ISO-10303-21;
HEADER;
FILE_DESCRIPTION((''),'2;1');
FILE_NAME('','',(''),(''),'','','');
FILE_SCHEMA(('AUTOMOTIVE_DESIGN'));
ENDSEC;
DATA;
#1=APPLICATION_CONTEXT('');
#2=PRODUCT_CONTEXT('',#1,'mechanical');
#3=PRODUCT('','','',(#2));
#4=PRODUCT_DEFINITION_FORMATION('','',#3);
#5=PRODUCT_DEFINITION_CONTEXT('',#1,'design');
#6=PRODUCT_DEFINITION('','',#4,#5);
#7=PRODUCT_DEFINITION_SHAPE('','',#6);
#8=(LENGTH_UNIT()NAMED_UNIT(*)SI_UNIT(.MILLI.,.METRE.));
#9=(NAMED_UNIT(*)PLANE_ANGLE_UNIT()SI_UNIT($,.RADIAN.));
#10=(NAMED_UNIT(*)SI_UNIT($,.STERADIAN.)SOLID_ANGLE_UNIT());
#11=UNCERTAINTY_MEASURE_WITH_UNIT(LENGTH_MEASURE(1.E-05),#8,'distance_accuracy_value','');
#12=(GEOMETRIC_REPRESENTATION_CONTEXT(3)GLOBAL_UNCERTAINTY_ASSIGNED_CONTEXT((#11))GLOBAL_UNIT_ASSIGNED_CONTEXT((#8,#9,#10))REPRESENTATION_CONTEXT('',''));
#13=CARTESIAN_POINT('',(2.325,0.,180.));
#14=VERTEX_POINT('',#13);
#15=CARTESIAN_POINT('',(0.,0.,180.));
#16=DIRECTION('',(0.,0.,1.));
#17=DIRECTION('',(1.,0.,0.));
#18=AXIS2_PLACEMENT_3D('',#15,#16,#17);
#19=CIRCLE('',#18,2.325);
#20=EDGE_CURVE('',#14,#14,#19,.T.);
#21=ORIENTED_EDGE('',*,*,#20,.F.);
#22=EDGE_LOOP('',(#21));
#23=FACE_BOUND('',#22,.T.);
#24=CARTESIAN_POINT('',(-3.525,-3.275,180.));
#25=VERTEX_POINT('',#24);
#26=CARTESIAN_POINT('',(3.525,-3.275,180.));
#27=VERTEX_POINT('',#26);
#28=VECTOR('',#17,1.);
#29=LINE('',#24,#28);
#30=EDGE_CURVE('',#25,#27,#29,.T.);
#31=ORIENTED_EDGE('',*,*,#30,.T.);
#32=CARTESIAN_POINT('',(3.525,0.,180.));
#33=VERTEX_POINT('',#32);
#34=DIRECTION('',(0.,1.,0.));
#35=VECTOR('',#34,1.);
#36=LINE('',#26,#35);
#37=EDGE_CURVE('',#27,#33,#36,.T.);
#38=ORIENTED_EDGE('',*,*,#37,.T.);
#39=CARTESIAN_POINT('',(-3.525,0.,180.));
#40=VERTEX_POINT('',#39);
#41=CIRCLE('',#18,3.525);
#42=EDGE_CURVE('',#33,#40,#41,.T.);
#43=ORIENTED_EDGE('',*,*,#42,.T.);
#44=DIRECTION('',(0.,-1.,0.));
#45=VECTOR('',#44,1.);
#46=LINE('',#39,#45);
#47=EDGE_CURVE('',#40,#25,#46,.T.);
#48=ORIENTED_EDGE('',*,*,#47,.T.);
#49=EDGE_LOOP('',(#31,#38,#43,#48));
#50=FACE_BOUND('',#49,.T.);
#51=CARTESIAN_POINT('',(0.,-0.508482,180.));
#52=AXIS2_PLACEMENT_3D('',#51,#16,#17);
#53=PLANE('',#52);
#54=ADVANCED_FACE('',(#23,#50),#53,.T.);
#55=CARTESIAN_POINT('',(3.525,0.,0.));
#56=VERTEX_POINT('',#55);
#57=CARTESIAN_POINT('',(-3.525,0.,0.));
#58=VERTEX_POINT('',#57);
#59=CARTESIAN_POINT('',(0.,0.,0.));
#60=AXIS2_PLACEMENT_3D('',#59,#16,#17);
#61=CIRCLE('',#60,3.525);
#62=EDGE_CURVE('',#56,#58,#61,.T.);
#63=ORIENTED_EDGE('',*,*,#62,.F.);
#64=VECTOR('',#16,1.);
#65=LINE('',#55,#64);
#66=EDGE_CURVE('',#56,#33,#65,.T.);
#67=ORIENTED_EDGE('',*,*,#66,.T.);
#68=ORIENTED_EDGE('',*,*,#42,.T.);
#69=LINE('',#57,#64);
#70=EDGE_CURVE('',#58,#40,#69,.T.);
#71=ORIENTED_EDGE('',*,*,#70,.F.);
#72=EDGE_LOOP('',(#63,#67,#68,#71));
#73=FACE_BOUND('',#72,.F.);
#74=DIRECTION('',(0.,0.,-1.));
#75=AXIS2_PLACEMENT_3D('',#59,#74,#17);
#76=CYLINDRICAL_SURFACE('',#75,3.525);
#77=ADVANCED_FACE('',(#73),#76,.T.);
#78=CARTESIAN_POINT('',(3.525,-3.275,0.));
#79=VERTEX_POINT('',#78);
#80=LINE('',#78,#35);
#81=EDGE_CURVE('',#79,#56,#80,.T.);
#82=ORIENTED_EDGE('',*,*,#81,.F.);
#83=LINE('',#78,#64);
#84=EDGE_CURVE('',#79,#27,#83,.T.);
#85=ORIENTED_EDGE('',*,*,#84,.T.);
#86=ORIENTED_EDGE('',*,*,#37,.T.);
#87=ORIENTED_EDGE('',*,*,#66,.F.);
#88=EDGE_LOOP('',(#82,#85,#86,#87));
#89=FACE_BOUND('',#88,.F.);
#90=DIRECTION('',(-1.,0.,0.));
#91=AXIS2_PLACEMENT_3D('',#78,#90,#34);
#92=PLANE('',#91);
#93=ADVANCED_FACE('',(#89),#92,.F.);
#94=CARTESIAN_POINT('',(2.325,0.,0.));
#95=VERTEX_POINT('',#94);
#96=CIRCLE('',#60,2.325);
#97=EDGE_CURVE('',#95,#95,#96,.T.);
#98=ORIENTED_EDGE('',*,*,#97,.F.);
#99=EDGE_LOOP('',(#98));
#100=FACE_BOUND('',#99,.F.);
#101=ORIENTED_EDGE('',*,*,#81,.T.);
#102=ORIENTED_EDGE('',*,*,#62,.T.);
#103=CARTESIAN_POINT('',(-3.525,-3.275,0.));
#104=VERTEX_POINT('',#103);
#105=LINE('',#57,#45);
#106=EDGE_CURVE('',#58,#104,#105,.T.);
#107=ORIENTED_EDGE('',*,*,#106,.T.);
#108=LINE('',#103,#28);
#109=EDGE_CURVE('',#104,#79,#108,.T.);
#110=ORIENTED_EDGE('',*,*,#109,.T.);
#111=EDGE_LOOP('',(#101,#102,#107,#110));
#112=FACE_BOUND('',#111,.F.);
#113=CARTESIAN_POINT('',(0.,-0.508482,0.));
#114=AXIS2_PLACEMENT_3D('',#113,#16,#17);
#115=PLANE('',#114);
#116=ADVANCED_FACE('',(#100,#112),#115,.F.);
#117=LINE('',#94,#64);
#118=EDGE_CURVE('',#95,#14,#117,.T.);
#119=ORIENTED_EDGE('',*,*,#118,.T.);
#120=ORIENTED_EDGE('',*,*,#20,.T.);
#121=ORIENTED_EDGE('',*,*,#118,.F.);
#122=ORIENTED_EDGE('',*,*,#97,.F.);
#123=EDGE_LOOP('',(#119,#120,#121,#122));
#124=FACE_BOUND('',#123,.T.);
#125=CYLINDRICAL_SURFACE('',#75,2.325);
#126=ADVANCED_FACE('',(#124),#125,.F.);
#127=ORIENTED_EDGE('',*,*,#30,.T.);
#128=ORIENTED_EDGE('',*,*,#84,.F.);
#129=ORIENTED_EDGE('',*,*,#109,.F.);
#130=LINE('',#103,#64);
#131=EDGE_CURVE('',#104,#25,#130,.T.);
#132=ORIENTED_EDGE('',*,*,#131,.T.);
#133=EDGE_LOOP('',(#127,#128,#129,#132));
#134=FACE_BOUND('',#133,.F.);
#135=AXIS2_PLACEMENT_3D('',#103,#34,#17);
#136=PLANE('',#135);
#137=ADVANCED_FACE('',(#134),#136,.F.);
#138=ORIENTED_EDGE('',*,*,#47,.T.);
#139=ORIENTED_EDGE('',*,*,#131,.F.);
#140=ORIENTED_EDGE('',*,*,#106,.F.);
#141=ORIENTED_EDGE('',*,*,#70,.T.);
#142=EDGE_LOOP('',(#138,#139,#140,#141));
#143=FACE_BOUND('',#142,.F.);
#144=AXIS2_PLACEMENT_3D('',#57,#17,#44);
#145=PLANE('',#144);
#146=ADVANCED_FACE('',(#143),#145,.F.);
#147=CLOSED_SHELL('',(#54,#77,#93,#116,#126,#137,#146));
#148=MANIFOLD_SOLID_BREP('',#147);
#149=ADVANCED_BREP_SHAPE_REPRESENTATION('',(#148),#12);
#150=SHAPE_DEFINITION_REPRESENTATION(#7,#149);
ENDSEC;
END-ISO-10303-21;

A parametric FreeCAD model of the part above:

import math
import FreeCAD as App
import Part
import Sketcher
from FreeCAD import Vector
Q = App.Units.Quantity

doc = App.newDocument("Part")
body = doc.addObject("PartDesign::Body", "Body")

sketch1 = body.newObject("Sketcher::SketchObject", "Sketch")
sketch1.AttachmentSupport = (doc.getObject("XY_Plane"), [""])
sketch1.MapMode = "FlatFace"
sketch1.addGeometry([
    Part.LineSegment(Vector(-3.5, 0, 0), Vector(-3.5, -3.3, 0)),
    Part.LineSegment(Vector(-3.5, -3.3, 0), Vector(3.5, -3.3, 0)),
    Part.LineSegment(Vector(3.5, -3.3, 0), Vector(3.5, 0, 0)),
    Part.ArcOfCircle(Part.Circle(Vector(0, 0, 0), Vector(0, 0, 1), 3.5), math.radians(0), math.radians(180)),
    Part.Circle(Vector(0, 0, 0), Vector(0, 0, 1), 2.3),
], False)
sketch1.addConstraint([
    Sketcher.Constraint("Coincident", 0, 2, 1, 1),
    Sketcher.Constraint("Coincident", 1, 2, 2, 1),
    Sketcher.Constraint("Tangent", 2, 2, 3, 1),
    Sketcher.Constraint("Tangent", 3, 2, 0, 1),
    Sketcher.Constraint("Vertical", 0),
    Sketcher.Constraint("Horizontal", 1),
    Sketcher.Constraint("Vertical", 2),
    Sketcher.Constraint("Coincident", 3, 3, -1, 1),
    Sketcher.Constraint("Coincident", 4, 3, -1, 1),
    Sketcher.Constraint("Diameter", 4, Q("4.65 mm")),
    Sketcher.Constraint("Radius", 3, Q("3.525 mm")),
    Sketcher.Constraint("DistanceY", 0, 2, 0, 1, Q("3.275 mm")),
])
pad1 = body.newObject("PartDesign::Pad", "Pad")
pad1.Profile = sketch1
pad1.Length = 180

doc.recompute()
